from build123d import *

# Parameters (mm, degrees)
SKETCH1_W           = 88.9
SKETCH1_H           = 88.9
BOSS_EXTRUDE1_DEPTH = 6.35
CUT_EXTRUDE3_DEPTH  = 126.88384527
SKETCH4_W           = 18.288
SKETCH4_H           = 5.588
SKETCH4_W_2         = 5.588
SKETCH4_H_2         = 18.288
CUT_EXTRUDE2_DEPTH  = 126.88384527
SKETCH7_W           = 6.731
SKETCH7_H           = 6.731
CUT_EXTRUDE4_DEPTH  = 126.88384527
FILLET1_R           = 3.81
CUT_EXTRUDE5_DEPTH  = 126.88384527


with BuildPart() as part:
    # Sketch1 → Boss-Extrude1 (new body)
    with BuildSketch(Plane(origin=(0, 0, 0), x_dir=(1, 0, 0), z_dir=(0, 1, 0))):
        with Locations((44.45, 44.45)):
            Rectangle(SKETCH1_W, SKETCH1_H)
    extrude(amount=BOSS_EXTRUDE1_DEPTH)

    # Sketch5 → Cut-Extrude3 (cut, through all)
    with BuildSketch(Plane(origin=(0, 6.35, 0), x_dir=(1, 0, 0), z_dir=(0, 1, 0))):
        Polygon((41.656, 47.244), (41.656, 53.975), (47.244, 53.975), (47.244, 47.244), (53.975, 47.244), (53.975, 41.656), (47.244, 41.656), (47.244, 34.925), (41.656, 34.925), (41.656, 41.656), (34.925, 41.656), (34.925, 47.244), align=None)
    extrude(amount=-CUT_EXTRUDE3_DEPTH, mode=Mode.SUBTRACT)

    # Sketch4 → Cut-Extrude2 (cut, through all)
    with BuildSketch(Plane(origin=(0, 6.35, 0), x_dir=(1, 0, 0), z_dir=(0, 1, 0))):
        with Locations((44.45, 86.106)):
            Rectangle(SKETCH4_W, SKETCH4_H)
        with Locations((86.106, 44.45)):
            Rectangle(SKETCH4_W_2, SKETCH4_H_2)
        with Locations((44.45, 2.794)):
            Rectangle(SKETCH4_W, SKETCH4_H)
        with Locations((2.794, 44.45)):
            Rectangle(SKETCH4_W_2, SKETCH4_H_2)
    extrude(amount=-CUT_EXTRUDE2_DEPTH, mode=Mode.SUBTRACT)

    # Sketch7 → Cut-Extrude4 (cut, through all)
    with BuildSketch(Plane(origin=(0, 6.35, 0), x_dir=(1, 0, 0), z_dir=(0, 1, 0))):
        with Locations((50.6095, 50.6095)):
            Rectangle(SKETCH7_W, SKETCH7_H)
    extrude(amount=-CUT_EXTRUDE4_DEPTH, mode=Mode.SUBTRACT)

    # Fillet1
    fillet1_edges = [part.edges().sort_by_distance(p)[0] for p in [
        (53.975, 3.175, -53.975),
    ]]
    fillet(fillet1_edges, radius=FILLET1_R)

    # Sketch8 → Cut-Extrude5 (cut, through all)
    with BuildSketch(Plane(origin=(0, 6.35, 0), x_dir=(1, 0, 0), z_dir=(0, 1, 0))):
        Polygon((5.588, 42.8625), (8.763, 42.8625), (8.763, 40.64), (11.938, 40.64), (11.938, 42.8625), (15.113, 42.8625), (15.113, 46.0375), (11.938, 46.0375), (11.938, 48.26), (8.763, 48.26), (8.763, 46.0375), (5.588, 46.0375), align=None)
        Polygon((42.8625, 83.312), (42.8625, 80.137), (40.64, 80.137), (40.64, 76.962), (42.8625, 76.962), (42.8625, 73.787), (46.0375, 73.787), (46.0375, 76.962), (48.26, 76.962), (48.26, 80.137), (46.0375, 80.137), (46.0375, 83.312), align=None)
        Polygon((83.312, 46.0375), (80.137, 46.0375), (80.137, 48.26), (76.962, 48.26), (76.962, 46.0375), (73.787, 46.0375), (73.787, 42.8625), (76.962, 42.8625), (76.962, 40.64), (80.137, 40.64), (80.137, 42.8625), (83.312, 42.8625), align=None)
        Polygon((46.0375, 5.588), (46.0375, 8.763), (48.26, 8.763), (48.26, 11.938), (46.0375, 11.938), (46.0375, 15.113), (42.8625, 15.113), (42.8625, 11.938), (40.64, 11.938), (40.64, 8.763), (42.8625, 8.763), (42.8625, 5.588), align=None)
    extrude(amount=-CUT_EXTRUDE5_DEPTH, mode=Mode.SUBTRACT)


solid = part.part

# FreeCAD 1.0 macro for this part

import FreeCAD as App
import Part
import Sketcher

V = App.Vector
Q = App.Units.Quantity


def edges_at(feature, points):
    """Names of the edges that pass closest to the given points."""
    edges = feature.Shape.Edges
    near = lambda p: min(range(len(edges)), key=lambda i: edges[i].distToShape(Part.Vertex(*p))[0])
    return sorted({f"Edge{near(p) + 1}" for p in points})


def add_polygon(sketch, points):
    """Adds a closed chain of lines whose ends are joined by coincident constraints."""
    first, n = sketch.GeometryCount, len(points)
    for a, b in zip(points, points[1:] + points[:1]):
        sketch.addGeometry(Part.LineSegment(App.Vector(*a, 0), App.Vector(*b, 0)), False)
    for i in range(n):
        sketch.addConstraint(Sketcher.Constraint("Coincident", first + i, 2, first + (i + 1) % n, 1))

doc = App.newDocument("Part")
body = doc.addObject("PartDesign::Body", "Body")

# Sketch on XZ plane
sketch1 = body.newObject("Sketcher::SketchObject", "Sketch")
sketch1.AttachmentSupport = (doc.getObject("XZ_Plane"), [""])
sketch1.MapMode = "FlatFace"
add_polygon(sketch1, [(0, -89), (0, 0), (89, 0), (89, -89)])  # lines 0-3
sketch1.addConstraint([
    Sketcher.Constraint("Vertical", 0),
    Sketcher.Constraint("Horizontal", 1),
    Sketcher.Constraint("Vertical", 2),
    Sketcher.Constraint("Horizontal", 3),
    Sketcher.Constraint("Coincident", 0, 2, -1, 1),
    Sketcher.Constraint("Equal", 3, 0),
    Sketcher.Constraint("DistanceX", 1, 1, 1, 2, Q("3.5 in")),
])
pad1 = body.newObject("PartDesign::Pad", "Pad")
pad1.Profile = sketch1
pad1.Length = Q("0.25 in")
pad1.Reversed = True

# Sketch on XZ plane
sketch2 = body.newObject("Sketcher::SketchObject", "Sketch001")
sketch2.AttachmentSupport = (doc.getObject("XZ_Plane"), [""])
sketch2.MapMode = "FlatFace"
sketch2.AttachmentOffset = App.Placement(V(0, 0, -0.25 * 25.4), App.Rotation())
add_polygon(sketch2, [(42, -54), (42, -47), (35, -47), (35, -42), (42, -42), (42, -35), (47, -35), (47, -42), (54, -42), (54, -47), (47, -47), (47, -54)])  # lines 0-11
sketch2.addConstraint([
    Sketcher.Constraint("Vertical", 0),
    Sketcher.Constraint("Horizontal", 1),
    Sketcher.Constraint("Vertical", 2),
    Sketcher.Constraint("Horizontal", 3),
    Sketcher.Constraint("Vertical", 4),
    Sketcher.Constraint("Horizontal", 5),
    Sketcher.Constraint("Vertical", 6),
    Sketcher.Constraint("Horizontal", 7),
    Sketcher.Constraint("Vertical", 8),
    Sketcher.Constraint("Horizontal", 9),
    Sketcher.Constraint("Vertical", 10),
    Sketcher.Constraint("Horizontal", 11),
    Sketcher.Constraint("Horizontal", 3, 2, 6, 2),
    Sketcher.Constraint("Horizontal", 1, 2, 8, 2),
    Sketcher.Constraint("Vertical", 0, 2, 3, 2),
    Sketcher.Constraint("Vertical", 6, 2, 9, 2),
    Sketcher.Constraint("Equal", 3, 7),
    Sketcher.Constraint("Equal", 9, 0),
    Sketcher.Constraint("Equal", 11, 2),
    Sketcher.Constraint("Equal", 0, 4),
    Sketcher.Constraint("DistanceX", 5, 1, 5, 2, Q("0.22 in")),
    Sketcher.Constraint("DistanceX", 1, 2, 1, 1, Q("0.265 in")),
    Sketcher.Constraint("DistanceX", -1, 1, 0, 2, Q("1.64 in")),
    Sketcher.Constraint("DistanceY", 0, 2, -1, 1, Q("1.86 in")),
])
pocket1 = body.newObject("PartDesign::Pocket", "Pocket")
pocket1.Profile = sketch2
pocket1.Type = "ThroughAll"
pocket1.Reversed = True

# Sketch on XZ plane
sketch3 = body.newObject("Sketcher::SketchObject", "Sketch002")
sketch3.AttachmentSupport = (doc.getObject("XZ_Plane"), [""])
sketch3.MapMode = "FlatFace"
sketch3.AttachmentOffset = App.Placement(V(0, 0, -0.25 * 25.4), App.Rotation())
add_polygon(sketch3, [(35, -89), (35, -83), (54, -83), (54, -89)])  # lines 0-3
add_polygon(sketch3, [(83, -54), (83, -35), (89, -35), (89, -54)])  # lines 4-7
add_polygon(sketch3, [(35, -6), (35, 0), (54, 0), (54, -6)])  # lines 8-11
add_polygon(sketch3, [(0, -54), (0, -35), (6, -35), (6, -54)])  # lines 12-15
sketch3.addConstraint([
    Sketcher.Constraint("Vertical", 0),
    Sketcher.Constraint("Horizontal", 1),
    Sketcher.Constraint("Vertical", 2),
    Sketcher.Constraint("Horizontal", 3),
    Sketcher.Constraint("Vertical", 4),
    Sketcher.Constraint("Horizontal", 5),
    Sketcher.Constraint("Vertical", 6),
    Sketcher.Constraint("Horizontal", 7),
    Sketcher.Constraint("Vertical", 8),
    Sketcher.Constraint("Horizontal", 9),
    Sketcher.Constraint("Vertical", 10),
    Sketcher.Constraint("Horizontal", 11),
    Sketcher.Constraint("Vertical", 12),
    Sketcher.Constraint("Horizontal", 13),
    Sketcher.Constraint("Vertical", 14),
    Sketcher.Constraint("Horizontal", 15),
    Sketcher.Constraint("PointOnObject", 8, 2, -1),
    Sketcher.Constraint("PointOnObject", 12, 2, -2),
    Sketcher.Constraint("Horizontal", 5, 2, 12, 2),
    Sketcher.Constraint("Horizontal", 7, 2, 14, 2),
    Sketcher.Constraint("Vertical", 3, 2, 8, 2),
    Sketcher.Constraint("Vertical", 2, 2, 9, 2),
    Sketcher.Constraint("Equal", 7, 13),
    Sketcher.Constraint("Equal", 15, 0),
    Sketcher.Constraint("Equal", 11, 4),
    Sketcher.Constraint("Equal", 2, 8),
    Sketcher.Constraint("DistanceX", 1, 1, 1, 2, Q("0.72 in")),
    Sketcher.Constraint("DistanceX", 5, 1, 5, 2, Q("0.22 in")),
    Sketcher.Constraint("DistanceY", 2, 2, -1, 1, Q("3.5 in")),
    Sketcher.Constraint("DistanceX", -1, 1, 5, 2, Q("3.5 in")),
    Sketcher.Constraint("DistanceX", -1, 1, 0, 2, Q("1.39 in")),
    Sketcher.Constraint("DistanceY", 4, 2, -1, 1, Q("1.39 in")),
])
pocket2 = body.newObject("PartDesign::Pocket", "Pocket001")
pocket2.Profile = sketch3
pocket2.Type = "ThroughAll"
pocket2.Reversed = True

# Sketch on XZ plane
sketch4 = body.newObject("Sketcher::SketchObject", "Sketch003")
sketch4.AttachmentSupport = (doc.getObject("XZ_Plane"), [""])
sketch4.MapMode = "FlatFace"
sketch4.AttachmentOffset = App.Placement(V(0, 0, -0.25 * 25.4), App.Rotation())
add_polygon(sketch4, [(47, -54), (47, -47), (54, -47), (54, -54)])  # lines 0-3
sketch4.addConstraint([
    Sketcher.Constraint("Vertical", 0),
    Sketcher.Constraint("Horizontal", 1),
    Sketcher.Constraint("Vertical", 2),
    Sketcher.Constraint("Horizontal", 3),
    Sketcher.Constraint("Equal", 3, 0),
    Sketcher.Constraint("DistanceX", 1, 1, 1, 2, Q("0.265 in")),
    Sketcher.Constraint("DistanceX", -1, 1, 0, 2, Q("1.86 in")),
    Sketcher.Constraint("DistanceY", 0, 2, -1, 1, Q("1.86 in")),
])
pocket3 = body.newObject("PartDesign::Pocket", "Pocket002")
pocket3.Profile = sketch4
pocket3.Type = "ThroughAll"
pocket3.Reversed = True
doc.recompute()

fillet = body.newObject("PartDesign::Fillet", "Fillet")
fillet.Base = (pocket3, edges_at(pocket3, [(53.975, 3.175, -53.975)]))
fillet.Radius = Q("0.15 in")

# Sketch on XZ plane
sketch5 = body.newObject("Sketcher::SketchObject", "Sketch004")
sketch5.AttachmentSupport = (doc.getObject("XZ_Plane"), [""])
sketch5.MapMode = "FlatFace"
sketch5.AttachmentOffset = App.Placement(V(0, 0, -0.25 * 25.4), App.Rotation())
add_polygon(sketch5, [(5.6, -42.9), (8.8, -42.9), (8.8, -40.6), (11.9, -40.6), (11.9, -42.9), (15.1, -42.9), (15.1, -46), (11.9, -46), (11.9, -48.3), (8.8, -48.3), (8.8, -46), (5.6, -46)])  # lines 0-11
add_polygon(sketch5, [(42.9, -83.3), (42.9, -80.1), (40.6, -80.1), (40.6, -77), (42.9, -77), (42.9, -73.8), (46, -73.8), (46, -77), (48.3, -77), (48.3, -80.1), (46, -80.1), (46, -83.3)])  # lines 12-23
add_polygon(sketch5, [(83.3, -46), (80.1, -46), (80.1, -48.3), (77, -48.3), (77, -46), (73.8, -46), (73.8, -42.9), (77, -42.9), (77, -40.6), (80.1, -40.6), (80.1, -42.9), (83.3, -42.9)])  # lines 24-35
add_polygon(sketch5, [(46, -5.6), (46, -8.8), (48.3, -8.8), (48.3, -11.9), (46, -11.9), (46, -15.1), (42.9, -15.1), (42.9, -11.9), (40.6, -11.9), (40.6, -8.8), (42.9, -8.8), (42.9, -5.6)])  # lines 36-47
sketch5.addConstraint([
    Sketcher.Constraint("Horizontal", 0),
    Sketcher.Constraint("Vertical", 1),
    Sketcher.Constraint("Horizontal", 2),
    Sketcher.Constraint("Vertical", 3),
    Sketcher.Constraint("Horizontal", 4),
    Sketcher.Constraint("Vertical", 5),
    Sketcher.Constraint("Horizontal", 6),
    Sketcher.Constraint("Vertical", 7),
    Sketcher.Constraint("Horizontal", 8),
    Sketcher.Constraint("Vertical", 9),
    Sketcher.Constraint("Horizontal", 10),
    Sketcher.Constraint("Vertical", 11),
    Sketcher.Constraint("Vertical", 12),
    Sketcher.Constraint("Horizontal", 13),
    Sketcher.Constraint("Vertical", 14),
    Sketcher.Constraint("Horizontal", 15),
    Sketcher.Constraint("Vertical", 16),
    Sketcher.Constraint("Horizontal", 17),
    Sketcher.Constraint("Vertical", 18),
    Sketcher.Constraint("Horizontal", 19),
    Sketcher.Constraint("Vertical", 20),
    Sketcher.Constraint("Horizontal", 21),
    Sketcher.Constraint("Vertical", 22),
    Sketcher.Constraint("Horizontal", 23),
    Sketcher.Constraint("Horizontal", 24),
    Sketcher.Constraint("Vertical", 25),
    Sketcher.Constraint("Horizontal", 26),
    Sketcher.Constraint("Vertical", 27),
    Sketcher.Constraint("Horizontal", 28),
    Sketcher.Constraint("Vertical", 29),
    Sketcher.Constraint("Horizontal", 30),
    Sketcher.Constraint("Vertical", 31),
    Sketcher.Constraint("Horizontal", 32),
    Sketcher.Constraint("Vertical", 33),
    Sketcher.Constraint("Horizontal", 34),
    Sketcher.Constraint("Vertical", 35),
    Sketcher.Constraint("Vertical", 36),
    Sketcher.Constraint("Horizontal", 37),
    Sketcher.Constraint("Vertical", 38),
    Sketcher.Constraint("Horizontal", 39),
    Sketcher.Constraint("Vertical", 40),
    Sketcher.Constraint("Horizontal", 41),
    Sketcher.Constraint("Vertical", 42),
    Sketcher.Constraint("Horizontal", 43),
    Sketcher.Constraint("Vertical", 44),
    Sketcher.Constraint("Horizontal", 45),
    Sketcher.Constraint("Vertical", 46),
    Sketcher.Constraint("Horizontal", 47),
    Sketcher.Constraint("Horizontal", 0, 2, 3, 2),
    Sketcher.Constraint("Horizontal", 6, 2, 9, 2),
    Sketcher.Constraint("Horizontal", 15, 2, 18, 2),
    Sketcher.Constraint("Horizontal", 13, 2, 20, 2),
    Sketcher.Constraint("Horizontal", 10, 2, 24, 2),
    Sketcher.Constraint("Horizontal", 8, 2, 25, 2),
    Sketcher.Constraint("Horizontal", 24, 2, 27, 2),
    Sketcher.Constraint("Horizontal", 11, 2, 29, 2),
    Sketcher.Constraint("Horizontal", 2, 2, 31, 2),
    Sketcher.Constraint("Horizontal", 30, 2, 33, 2),
    Sketcher.Constraint("Horizontal", 39, 2, 42, 2),
    Sketcher.Constraint("Horizontal", 37, 2, 44, 2),
    Sketcher.Constraint("Vertical", 3, 2, 6, 2),
    Sketcher.Constraint("Vertical", 1, 2, 8, 2),
    Sketcher.Constraint("Vertical", 12, 2, 15, 2),
    Sketcher.Constraint("Vertical", 18, 2, 21, 2),
    Sketcher.Constraint("Vertical", 27, 2, 30, 2),
    Sketcher.Constraint("Vertical", 25, 2, 32, 2),
    Sketcher.Constraint("Vertical", 22, 2, 36, 2),
    Sketcher.Constraint("Vertical", 20, 2, 37, 2),
    Sketcher.Constraint("Vertical", 36, 2, 39, 2),
    Sketcher.Constraint("Vertical", 23, 2, 41, 2),
    Sketcher.Constraint("Vertical", 14, 2, 43, 2),
    Sketcher.Constraint("Vertical", 42, 2, 45, 2),
    Sketcher.Constraint("Equal", 0, 2),
    Sketcher.Constraint("Equal", 2, 4),
    Sketcher.Constraint("Equal", 10, 17),
    Sketcher.Constraint("Equal", 15, 19),
    Sketcher.Constraint("Equal", 23, 24),
    Sketcher.Constraint("Equal", 24, 26),
    Sketcher.Constraint("Equal", 26, 28),
    Sketcher.Constraint("Equal", 45, 1),
    Sketcher.Constraint("Equal", 47, 5),
    Sketcher.Constraint("Equal", 3, 7),
    Sketcher.Constraint("Equal", 11, 12),
    Sketcher.Constraint("Equal", 12, 14),
    Sketcher.Constraint("Equal", 14, 16),
    Sketcher.Constraint("Equal", 35, 36),
    Sketcher.Constraint("Equal", 36, 38),
    Sketcher.Constraint("Equal", 38, 40),
    Sketcher.Constraint("DistanceY", 1, 2, -1, 1, Q("1.6 in")),
    Sketcher.Constraint("DistanceY", 7, 2, -1, 1, Q("1.9 in")),
    Sketcher.Constraint("DistanceX", -1, 1, 13, 2, Q("1.6 in")),
    Sketcher.Constraint("DistanceX", 0, 1, 0, 2, Q("0.125 in")),
    Sketcher.Constraint("DistanceX", -1, 1, 2, 2, Q("0.47 in")),
    Sketcher.Constraint("DistanceY", 14, 2, -1, 1, Q("3.03 in")),
    Sketcher.Constraint("DistanceX", -1, 1, 26, 2, Q("3.03 in")),
    Sketcher.Constraint("DistanceY", 38, 2, -1, 1, Q("0.47 in")),
])
pocket4 = body.newObject("PartDesign::Pocket", "Pocket003")
pocket4.Profile = sketch5
pocket4.Type = "ThroughAll"
pocket4.Reversed = True

doc.recompute()
